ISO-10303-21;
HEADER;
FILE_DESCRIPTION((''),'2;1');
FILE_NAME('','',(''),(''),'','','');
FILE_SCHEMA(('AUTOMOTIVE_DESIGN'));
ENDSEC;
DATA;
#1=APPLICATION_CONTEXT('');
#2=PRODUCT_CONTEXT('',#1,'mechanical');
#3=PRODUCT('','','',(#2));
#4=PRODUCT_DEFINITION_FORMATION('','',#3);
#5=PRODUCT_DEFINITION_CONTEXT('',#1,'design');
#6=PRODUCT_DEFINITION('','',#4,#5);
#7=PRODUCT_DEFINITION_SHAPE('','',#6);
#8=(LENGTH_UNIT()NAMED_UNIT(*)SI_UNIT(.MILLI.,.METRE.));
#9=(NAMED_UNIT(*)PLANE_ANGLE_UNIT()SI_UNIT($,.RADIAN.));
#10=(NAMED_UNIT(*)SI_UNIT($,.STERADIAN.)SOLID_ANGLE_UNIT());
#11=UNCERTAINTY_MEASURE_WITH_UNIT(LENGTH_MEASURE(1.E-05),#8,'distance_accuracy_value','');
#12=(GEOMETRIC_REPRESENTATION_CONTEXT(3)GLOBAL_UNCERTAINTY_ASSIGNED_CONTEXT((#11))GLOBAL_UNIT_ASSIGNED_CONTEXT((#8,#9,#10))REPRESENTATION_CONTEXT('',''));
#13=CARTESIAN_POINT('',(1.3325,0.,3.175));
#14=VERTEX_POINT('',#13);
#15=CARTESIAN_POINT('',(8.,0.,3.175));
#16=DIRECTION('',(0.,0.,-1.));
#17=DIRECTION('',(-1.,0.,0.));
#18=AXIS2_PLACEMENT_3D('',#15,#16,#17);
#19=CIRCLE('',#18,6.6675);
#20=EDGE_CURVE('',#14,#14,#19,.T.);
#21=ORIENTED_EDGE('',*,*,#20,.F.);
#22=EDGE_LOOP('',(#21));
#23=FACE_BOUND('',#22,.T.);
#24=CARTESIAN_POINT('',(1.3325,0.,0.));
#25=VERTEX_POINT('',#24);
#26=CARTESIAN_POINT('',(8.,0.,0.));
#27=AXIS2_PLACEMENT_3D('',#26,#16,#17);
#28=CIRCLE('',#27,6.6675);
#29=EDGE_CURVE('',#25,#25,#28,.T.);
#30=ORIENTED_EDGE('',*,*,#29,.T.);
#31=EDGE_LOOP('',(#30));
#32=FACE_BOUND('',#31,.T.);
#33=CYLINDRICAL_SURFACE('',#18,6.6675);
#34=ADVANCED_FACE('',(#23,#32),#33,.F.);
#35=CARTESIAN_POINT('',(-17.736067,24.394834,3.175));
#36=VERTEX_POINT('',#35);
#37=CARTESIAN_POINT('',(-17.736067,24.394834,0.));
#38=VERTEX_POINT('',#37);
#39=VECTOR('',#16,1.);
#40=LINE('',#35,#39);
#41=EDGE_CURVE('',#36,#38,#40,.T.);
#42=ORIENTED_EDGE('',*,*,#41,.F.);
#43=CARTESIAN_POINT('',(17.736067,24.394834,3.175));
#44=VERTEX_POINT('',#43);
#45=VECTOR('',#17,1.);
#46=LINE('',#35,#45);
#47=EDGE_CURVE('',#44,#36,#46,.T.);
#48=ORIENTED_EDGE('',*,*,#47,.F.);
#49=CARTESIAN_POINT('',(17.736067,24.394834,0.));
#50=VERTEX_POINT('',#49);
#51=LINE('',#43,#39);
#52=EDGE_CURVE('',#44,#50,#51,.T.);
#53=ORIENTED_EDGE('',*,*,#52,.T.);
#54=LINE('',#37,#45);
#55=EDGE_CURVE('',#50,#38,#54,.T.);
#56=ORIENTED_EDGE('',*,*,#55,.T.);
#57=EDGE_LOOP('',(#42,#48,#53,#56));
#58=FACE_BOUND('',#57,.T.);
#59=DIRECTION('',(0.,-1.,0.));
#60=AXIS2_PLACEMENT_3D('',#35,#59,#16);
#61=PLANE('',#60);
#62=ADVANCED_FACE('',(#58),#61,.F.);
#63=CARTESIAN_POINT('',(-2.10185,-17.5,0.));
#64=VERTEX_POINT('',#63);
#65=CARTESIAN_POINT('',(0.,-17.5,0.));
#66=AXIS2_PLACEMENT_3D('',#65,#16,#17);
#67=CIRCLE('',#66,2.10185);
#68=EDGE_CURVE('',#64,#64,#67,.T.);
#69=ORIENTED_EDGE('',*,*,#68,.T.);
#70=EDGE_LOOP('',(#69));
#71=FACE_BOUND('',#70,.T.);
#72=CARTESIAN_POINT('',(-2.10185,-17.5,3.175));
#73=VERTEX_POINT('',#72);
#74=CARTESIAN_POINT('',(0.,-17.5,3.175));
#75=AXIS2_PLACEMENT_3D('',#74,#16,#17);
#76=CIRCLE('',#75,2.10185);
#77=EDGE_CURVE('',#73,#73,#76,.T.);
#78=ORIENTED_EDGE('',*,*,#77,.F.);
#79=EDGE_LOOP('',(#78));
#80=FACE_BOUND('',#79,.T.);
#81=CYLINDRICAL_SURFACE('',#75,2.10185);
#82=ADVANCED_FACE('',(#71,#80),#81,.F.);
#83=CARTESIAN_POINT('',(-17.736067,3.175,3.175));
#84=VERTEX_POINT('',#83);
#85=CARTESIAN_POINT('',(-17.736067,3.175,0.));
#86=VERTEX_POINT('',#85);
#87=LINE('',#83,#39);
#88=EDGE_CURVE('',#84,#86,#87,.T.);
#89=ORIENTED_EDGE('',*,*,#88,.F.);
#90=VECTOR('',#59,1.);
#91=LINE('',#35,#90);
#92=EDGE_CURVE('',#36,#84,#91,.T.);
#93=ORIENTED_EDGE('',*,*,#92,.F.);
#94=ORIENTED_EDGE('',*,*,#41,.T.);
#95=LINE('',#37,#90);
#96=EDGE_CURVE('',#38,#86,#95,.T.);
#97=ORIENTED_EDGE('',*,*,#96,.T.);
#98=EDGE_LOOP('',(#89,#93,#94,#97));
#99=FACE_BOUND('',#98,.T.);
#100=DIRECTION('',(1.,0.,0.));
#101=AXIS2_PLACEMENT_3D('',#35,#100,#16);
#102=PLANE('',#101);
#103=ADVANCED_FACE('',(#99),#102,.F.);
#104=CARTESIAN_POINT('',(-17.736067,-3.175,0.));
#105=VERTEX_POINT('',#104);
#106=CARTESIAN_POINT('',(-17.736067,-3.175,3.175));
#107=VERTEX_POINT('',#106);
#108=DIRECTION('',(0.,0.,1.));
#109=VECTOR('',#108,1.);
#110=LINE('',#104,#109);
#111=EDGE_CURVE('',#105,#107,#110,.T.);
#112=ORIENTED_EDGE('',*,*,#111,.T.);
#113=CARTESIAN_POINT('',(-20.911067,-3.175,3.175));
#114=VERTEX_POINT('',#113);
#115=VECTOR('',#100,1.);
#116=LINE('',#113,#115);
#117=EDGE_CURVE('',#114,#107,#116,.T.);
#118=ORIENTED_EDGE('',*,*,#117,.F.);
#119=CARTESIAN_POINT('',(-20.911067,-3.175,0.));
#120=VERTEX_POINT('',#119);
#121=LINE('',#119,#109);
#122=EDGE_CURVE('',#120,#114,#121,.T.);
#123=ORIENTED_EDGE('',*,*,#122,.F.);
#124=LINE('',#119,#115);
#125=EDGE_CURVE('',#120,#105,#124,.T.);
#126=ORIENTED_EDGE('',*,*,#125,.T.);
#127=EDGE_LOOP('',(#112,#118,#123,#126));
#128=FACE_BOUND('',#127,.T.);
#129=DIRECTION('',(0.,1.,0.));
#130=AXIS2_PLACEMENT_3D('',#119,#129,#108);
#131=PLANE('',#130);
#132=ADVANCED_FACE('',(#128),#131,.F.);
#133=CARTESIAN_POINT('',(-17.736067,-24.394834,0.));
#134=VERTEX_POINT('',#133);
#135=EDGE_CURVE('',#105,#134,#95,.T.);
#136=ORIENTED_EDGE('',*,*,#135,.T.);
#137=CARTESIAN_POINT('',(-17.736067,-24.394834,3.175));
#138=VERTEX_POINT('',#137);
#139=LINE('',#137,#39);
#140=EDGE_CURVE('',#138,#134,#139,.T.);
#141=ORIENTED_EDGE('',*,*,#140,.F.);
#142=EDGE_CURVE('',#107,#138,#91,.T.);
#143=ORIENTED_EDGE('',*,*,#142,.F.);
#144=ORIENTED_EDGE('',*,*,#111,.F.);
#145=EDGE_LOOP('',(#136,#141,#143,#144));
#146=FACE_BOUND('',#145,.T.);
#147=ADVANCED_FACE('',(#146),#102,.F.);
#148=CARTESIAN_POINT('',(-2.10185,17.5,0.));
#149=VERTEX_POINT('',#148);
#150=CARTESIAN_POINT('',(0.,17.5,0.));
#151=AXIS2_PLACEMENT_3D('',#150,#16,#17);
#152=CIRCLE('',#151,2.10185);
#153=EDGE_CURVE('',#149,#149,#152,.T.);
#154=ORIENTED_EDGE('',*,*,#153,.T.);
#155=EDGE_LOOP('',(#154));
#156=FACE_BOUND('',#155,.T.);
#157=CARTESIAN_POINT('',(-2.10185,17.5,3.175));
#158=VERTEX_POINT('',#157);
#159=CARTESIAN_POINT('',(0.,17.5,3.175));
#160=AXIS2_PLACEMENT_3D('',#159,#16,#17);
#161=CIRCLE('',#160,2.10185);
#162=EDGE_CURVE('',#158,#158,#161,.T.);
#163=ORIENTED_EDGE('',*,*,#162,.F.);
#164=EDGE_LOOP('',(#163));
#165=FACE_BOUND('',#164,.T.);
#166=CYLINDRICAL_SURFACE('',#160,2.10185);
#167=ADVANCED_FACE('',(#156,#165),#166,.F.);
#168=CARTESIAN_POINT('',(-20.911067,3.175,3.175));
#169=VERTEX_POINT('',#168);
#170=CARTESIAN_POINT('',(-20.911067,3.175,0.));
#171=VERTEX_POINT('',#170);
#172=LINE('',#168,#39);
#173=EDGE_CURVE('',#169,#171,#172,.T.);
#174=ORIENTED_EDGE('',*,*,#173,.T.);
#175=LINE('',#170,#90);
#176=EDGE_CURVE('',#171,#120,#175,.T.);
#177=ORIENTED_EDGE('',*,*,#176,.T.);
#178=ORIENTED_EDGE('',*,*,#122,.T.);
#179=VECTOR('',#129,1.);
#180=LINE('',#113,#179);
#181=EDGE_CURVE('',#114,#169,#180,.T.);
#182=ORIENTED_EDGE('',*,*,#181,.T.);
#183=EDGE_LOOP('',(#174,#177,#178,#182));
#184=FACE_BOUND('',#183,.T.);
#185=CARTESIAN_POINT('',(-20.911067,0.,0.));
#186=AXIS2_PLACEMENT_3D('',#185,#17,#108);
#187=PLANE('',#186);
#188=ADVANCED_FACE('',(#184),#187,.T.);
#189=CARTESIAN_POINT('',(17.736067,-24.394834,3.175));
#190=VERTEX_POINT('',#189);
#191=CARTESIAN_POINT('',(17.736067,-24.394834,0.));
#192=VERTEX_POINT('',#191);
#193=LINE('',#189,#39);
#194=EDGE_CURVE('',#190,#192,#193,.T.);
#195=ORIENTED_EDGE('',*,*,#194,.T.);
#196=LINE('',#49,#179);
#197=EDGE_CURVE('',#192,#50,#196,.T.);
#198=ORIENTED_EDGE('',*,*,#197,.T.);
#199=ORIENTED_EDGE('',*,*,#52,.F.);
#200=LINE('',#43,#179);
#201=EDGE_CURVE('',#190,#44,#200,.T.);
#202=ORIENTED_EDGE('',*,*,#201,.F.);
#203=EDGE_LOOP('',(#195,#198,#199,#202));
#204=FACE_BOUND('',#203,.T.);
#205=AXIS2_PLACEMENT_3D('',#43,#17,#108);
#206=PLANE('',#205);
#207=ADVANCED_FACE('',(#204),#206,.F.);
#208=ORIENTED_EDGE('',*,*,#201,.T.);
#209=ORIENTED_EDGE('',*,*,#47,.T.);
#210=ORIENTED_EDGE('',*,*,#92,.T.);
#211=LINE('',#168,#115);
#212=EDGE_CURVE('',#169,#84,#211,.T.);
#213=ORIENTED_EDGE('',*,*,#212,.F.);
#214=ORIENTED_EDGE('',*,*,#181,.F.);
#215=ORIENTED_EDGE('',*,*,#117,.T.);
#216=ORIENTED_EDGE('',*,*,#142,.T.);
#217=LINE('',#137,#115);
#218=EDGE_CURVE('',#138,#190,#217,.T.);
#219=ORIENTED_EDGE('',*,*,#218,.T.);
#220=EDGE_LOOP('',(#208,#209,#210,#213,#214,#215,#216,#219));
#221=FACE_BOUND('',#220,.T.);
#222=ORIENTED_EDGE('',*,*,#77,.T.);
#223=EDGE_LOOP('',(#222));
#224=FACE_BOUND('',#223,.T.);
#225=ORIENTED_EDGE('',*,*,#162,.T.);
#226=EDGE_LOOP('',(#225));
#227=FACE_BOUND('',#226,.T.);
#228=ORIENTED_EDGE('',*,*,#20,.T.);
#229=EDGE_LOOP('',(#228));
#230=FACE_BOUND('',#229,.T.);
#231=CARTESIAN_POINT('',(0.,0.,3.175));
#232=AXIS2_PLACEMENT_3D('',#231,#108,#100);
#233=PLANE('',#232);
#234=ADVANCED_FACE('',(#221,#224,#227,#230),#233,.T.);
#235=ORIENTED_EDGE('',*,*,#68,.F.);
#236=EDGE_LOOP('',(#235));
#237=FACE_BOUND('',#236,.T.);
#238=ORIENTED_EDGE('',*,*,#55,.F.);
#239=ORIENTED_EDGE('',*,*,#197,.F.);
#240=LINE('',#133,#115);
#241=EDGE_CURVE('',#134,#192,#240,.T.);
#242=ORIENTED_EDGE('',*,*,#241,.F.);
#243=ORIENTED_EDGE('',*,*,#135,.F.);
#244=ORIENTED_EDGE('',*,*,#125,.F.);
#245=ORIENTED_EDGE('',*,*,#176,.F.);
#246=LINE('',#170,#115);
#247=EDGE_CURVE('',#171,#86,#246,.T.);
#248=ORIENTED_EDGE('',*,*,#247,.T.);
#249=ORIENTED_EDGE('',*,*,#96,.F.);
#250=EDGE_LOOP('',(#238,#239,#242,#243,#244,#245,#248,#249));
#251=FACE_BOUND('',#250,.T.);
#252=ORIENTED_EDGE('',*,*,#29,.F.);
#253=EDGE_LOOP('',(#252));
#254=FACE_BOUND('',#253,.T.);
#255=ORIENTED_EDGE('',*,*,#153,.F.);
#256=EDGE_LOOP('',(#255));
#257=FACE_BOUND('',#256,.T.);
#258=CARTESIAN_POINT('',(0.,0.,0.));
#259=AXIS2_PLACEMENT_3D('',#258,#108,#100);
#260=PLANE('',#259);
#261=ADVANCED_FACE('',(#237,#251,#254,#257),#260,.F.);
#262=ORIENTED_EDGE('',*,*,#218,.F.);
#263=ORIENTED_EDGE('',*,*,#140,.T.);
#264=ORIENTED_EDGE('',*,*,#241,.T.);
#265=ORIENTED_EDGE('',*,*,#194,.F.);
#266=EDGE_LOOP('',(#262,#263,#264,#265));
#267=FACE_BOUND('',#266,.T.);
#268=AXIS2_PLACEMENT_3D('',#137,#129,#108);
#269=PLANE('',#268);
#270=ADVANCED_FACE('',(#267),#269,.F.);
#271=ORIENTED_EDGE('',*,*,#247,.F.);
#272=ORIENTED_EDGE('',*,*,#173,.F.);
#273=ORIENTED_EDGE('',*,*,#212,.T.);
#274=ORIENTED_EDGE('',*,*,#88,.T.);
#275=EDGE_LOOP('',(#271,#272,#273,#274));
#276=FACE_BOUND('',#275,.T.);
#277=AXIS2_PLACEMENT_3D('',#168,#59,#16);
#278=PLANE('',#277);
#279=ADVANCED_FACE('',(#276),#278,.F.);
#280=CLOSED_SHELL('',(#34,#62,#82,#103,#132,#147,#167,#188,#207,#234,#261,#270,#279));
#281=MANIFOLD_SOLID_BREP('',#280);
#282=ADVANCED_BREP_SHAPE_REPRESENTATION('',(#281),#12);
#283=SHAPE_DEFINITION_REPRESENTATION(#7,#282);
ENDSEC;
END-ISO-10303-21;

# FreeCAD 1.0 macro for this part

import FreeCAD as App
import Part
import Sketcher

V = App.Vector
Q = App.Units.Quantity


def add_polygon(sketch, points):
    """Adds a closed chain of lines whose ends are joined by coincident constraints."""
    first, n = sketch.GeometryCount, len(points)
    for a, b in zip(points, points[1:] + points[:1]):
        sketch.addGeometry(Part.LineSegment(App.Vector(*a, 0), App.Vector(*b, 0)), False)
    for i in range(n):
        sketch.addConstraint(Sketcher.Constraint("Coincident", first + i, 2, first + (i + 1) % n, 1))

doc = App.newDocument("Part")
body = doc.addObject("PartDesign::Body", "Body")

sketch1 = body.newObject("Sketcher::SketchObject", "Sketch")
sketch1.AttachmentSupport = (doc.getObject("XY_Plane"), [""])
sketch1.MapMode = "FlatFace"
add_polygon(sketch1, [(-17.736067, 24.394834), (-17.736067, -24.394834), (17.736067, -24.394834), (17.736067, 24.394834)])
sketch1.addConstraint([
    Sketcher.Constraint("Vertical", 0),
    Sketcher.Constraint("Horizontal", 1),
    Sketcher.Constraint("Vertical", 2),
    Sketcher.Constraint("Horizontal", 3),
    Sketcher.Constraint("Symmetric", 0, 2, 2, 2, -1, 1),
    Sketcher.Constraint("DistanceX", 1, 1, 1, 2, 35.472135),
    Sketcher.Constraint("DistanceY", 0, 2, 0, 1, 48.789668),
])
pad1 = body.newObject("PartDesign::Pad", "Pad")
pad1.Profile = sketch1
pad1.Length = Q("0.125 in")

sketch2 = body.newObject("Sketcher::SketchObject", "Sketch001")
sketch2.AttachmentSupport = (doc.getObject("XY_Plane"), [""])
sketch2.MapMode = "FlatFace"
sketch2.addGeometry([
    Part.Circle(V(0, 17.5, 0), V(0, 0, 1), 2.10185),
    Part.Circle(V(0, -17.5, 0), V(0, 0, 1), 2.10185),
    Part.Circle(V(8, 0, 0), V(0, 0, 1), 6.6675),
], False)
sketch2.addConstraint([
    Sketcher.Constraint("Equal", 0, 1),
    Sketcher.Constraint("Symmetric", 0, 3, 1, 3, -1, 1),
    Sketcher.Constraint("PointOnObject", 0, 3, -2),
    Sketcher.Constraint("PointOnObject", 2, 3, -1),
    Sketcher.Constraint("Diameter", 2, Q("0.525 in")),
    Sketcher.Constraint("Diameter", 0, Q("0.1655 in")),
    Sketcher.Constraint("DistanceY", -1, 1, 0, 3, 17.5),
    Sketcher.Constraint("DistanceX", -1, 1, 2, 3, 8.0),
])
pocket1 = body.newObject("PartDesign::Pocket", "Pocket")
pocket1.Profile = sketch2
pocket1.Type = "ThroughAll"
pocket1.Reversed = True

sketch3 = body.newObject("Sketcher::SketchObject", "Sketch002")
sketch3.AttachmentSupport = (doc.getObject("YZ_Plane"), [""])
sketch3.MapMode = "FlatFace"
sketch3.AttachmentOffset = App.Placement(V(0, 0, -17.736067), App.Rotation())
add_polygon(sketch3, [(-3.175, 0), (-3.175, 3.175), (3.175, 3.175), (3.175, 0)])
sketch3.addConstraint([
    Sketcher.Constraint("Vertical", 0),
    Sketcher.Constraint("Horizontal", 1),
    Sketcher.Constraint("Vertical", 2),
    Sketcher.Constraint("Horizontal", 3),
    Sketcher.Constraint("Symmetric", 2, 2, 3, 2, -1, 1),
    Sketcher.Constraint("DistanceX", 1, 1, 1, 2, Q("0.25 in")),
    Sketcher.Constraint("DistanceY", 0, 1, 0, 2, Q("0.125 in")),
])
pad2 = body.newObject("PartDesign::Pad", "Pad001")
pad2.Profile = sketch3
pad2.Length = Q("0.125 in")
pad2.Reversed = True

doc.recompute()
